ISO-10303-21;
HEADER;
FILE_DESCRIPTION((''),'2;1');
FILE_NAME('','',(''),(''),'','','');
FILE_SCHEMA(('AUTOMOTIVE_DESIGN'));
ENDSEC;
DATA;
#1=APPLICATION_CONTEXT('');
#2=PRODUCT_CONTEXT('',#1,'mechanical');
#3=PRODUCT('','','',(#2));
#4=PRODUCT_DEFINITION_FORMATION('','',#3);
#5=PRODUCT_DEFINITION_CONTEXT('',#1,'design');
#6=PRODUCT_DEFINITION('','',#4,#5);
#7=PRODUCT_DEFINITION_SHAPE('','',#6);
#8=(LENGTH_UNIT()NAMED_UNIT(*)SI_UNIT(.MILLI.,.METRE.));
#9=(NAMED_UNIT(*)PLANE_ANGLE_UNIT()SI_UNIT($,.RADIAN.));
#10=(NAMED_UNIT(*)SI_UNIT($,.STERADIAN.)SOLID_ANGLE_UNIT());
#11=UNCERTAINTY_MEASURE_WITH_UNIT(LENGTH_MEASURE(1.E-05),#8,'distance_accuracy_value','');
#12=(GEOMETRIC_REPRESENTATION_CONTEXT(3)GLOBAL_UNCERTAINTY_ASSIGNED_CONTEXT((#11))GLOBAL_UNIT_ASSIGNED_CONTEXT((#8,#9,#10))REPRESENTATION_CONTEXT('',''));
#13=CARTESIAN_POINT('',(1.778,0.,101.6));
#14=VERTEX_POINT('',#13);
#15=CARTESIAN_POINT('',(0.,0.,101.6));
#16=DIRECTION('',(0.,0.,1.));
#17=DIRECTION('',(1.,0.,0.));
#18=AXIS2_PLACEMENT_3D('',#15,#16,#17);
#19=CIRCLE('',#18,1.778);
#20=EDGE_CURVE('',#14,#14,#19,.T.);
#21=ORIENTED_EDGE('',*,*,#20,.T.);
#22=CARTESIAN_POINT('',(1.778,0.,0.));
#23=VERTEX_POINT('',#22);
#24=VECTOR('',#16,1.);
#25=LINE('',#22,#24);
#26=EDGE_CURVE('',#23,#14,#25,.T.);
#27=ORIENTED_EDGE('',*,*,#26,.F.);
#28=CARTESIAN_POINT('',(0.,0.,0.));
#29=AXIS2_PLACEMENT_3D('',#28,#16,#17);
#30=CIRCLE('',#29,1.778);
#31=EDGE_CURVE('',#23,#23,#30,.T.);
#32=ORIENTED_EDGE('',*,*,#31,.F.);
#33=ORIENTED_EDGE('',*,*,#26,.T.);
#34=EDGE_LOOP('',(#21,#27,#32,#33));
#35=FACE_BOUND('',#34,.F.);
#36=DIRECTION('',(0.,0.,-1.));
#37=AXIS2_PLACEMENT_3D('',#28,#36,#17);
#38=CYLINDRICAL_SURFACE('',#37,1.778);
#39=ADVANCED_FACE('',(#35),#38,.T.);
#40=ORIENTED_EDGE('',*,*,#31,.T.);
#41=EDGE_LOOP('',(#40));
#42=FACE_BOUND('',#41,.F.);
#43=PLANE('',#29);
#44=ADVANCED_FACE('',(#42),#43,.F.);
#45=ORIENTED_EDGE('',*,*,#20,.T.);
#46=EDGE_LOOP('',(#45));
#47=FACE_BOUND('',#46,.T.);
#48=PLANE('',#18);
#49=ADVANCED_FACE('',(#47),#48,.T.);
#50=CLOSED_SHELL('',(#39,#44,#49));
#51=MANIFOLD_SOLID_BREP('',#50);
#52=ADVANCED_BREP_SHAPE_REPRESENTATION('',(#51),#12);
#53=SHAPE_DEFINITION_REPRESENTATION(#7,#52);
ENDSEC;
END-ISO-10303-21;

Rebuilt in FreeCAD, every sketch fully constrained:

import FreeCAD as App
import Part
import Sketcher
Q = App.Units.Quantity

doc = App.newDocument("Part")
params = doc.addObject("Spreadsheet::Sheet", "Params")
for row, (alias, value) in enumerate([
    ("sketch1_diameter", "0.14 in"),
    ("pad1_length", "4 in"),
], start=1):
    params.set(f"A{row}", alias)
    params.set(f"B{row}", "=" + value)
    params.setAlias(f"B{row}", alias)

body = doc.addObject("PartDesign::Body", "Body")

# Sketch on XY plane
sketch1 = body.newObject("Sketcher::SketchObject", "Sketch")
sketch1.AttachmentSupport = (doc.getObject("XY_Plane"), [""])
sketch1.MapMode = "FlatFace"
sketch1.addGeometry(Part.Circle(App.Vector(0, 0, 0), App.Vector(0, 0, 1), 1.8), False)
sketch1.addConstraint(Sketcher.Constraint("Coincident", 0, 3, -1, 1))
sketch1.addConstraint(Sketcher.Constraint("Diameter", 0, Q("0.14 in")))
sketch1.setExpression("Constraints[1]", "Params.sketch1_diameter")
pad1 = body.newObject("PartDesign::Pad", "Pad")
pad1.Profile = sketch1
pad1.setExpression("Length", "Params.pad1_length")

doc.recompute()
